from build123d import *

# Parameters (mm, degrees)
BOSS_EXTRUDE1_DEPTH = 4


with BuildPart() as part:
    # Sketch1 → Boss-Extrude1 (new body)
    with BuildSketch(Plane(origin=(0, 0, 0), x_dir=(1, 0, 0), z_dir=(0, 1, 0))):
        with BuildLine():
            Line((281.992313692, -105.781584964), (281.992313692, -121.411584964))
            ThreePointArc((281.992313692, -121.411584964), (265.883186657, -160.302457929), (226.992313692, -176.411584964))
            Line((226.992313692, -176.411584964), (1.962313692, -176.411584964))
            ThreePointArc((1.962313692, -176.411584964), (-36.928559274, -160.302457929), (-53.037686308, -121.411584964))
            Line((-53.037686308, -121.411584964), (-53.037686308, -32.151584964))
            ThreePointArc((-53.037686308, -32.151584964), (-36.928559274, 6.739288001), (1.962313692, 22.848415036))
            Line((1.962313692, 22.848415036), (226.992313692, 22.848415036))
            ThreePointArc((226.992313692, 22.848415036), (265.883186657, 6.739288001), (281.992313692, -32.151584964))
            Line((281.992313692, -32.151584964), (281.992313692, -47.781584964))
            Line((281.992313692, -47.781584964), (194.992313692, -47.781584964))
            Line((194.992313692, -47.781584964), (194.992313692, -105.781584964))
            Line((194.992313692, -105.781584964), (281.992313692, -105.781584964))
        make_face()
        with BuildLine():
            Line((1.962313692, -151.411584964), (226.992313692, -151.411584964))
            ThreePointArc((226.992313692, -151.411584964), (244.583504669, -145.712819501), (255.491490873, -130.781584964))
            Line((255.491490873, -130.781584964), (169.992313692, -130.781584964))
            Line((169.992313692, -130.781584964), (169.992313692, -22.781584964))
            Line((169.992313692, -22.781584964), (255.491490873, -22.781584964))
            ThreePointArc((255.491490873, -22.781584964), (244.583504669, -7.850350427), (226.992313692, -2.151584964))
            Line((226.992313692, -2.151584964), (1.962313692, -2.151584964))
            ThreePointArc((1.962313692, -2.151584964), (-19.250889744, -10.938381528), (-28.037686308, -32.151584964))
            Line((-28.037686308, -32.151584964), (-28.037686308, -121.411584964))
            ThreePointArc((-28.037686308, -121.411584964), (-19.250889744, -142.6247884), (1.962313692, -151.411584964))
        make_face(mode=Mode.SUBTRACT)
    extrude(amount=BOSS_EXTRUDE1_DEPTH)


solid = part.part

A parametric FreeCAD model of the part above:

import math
import FreeCAD as App
import Part
import Sketcher
Q = App.Units.Quantity

doc = App.newDocument("Part")
body = doc.addObject("PartDesign::Body", "Body")

# Sketch on XZ plane
sketch1 = doc.addObject("Sketcher::SketchObject", "Sketch")
body.addObject(sketch1)
sketch1.AttachmentSupport = (doc.XZ_Plane, [""])
sketch1.MapMode = "FlatFace"
sketch1.addGeometry(Part.LineSegment(App.Vector(282, 121, 0), App.Vector(282, 106, 0)), False)
sketch1.addGeometry(Part.LineSegment(App.Vector(282, 106, 0), App.Vector(195, 106, 0)), False)
sketch1.addGeometry(Part.LineSegment(App.Vector(195, 106, 0), App.Vector(195, 48, 0)), False)
sketch1.addGeometry(Part.LineSegment(App.Vector(195, 48, 0), App.Vector(282, 48, 0)), False)
sketch1.addGeometry(Part.LineSegment(App.Vector(282, 48, 0), App.Vector(282, 32, 0)), False)
sketch1.addGeometry(Part.ArcOfCircle(Part.Circle(App.Vector(227, 32, 0), App.Vector(0, 0, 1), 55), math.radians(-90), math.radians(0)), False)
sketch1.addGeometry(Part.LineSegment(App.Vector(227, -23, 0), App.Vector(2, -23, 0)), False)
sketch1.addGeometry(Part.ArcOfCircle(Part.Circle(App.Vector(2, 32, 0), App.Vector(0, 0, 1), 55), math.radians(180), math.radians(270)), False)
sketch1.addGeometry(Part.LineSegment(App.Vector(-53, 32, 0), App.Vector(-53, 121, 0)), False)
sketch1.addGeometry(Part.ArcOfCircle(Part.Circle(App.Vector(2, 121, 0), App.Vector(0, 0, 1), 55), math.radians(90), math.radians(180)), False)
sketch1.addGeometry(Part.LineSegment(App.Vector(2, 176, 0), App.Vector(227, 176, 0)), False)
sketch1.addGeometry(Part.ArcOfCircle(Part.Circle(App.Vector(227, 121, 0), App.Vector(0, 0, 1), 55), math.radians(0), math.radians(90)), False)
sketch1.addGeometry(Part.ArcOfCircle(Part.Circle(App.Vector(2, 121, 0), App.Vector(0, 0, 1), 30), math.radians(90), math.radians(180)), False)
sketch1.addGeometry(Part.LineSegment(App.Vector(-28, 121, 0), App.Vector(-28, 32, 0)), False)
sketch1.addGeometry(Part.ArcOfCircle(Part.Circle(App.Vector(2, 32, 0), App.Vector(0, 0, 1), 30), math.radians(180), math.radians(270)), False)
sketch1.addGeometry(Part.LineSegment(App.Vector(2, 2, 0), App.Vector(227, 2, 0)), False)
sketch1.addGeometry(Part.ArcOfCircle(Part.Circle(App.Vector(227, 32, 0), App.Vector(0, 0, 1), 30), math.radians(-90), math.radians(-18)), False)
sketch1.addGeometry(Part.LineSegment(App.Vector(255, 23, 0), App.Vector(170, 23, 0)), False)
sketch1.addGeometry(Part.LineSegment(App.Vector(170, 23, 0), App.Vector(170, 131, 0)), False)
sketch1.addGeometry(Part.LineSegment(App.Vector(170, 131, 0), App.Vector(255, 131, 0)), False)
sketch1.addGeometry(Part.ArcOfCircle(Part.Circle(App.Vector(227, 121, 0), App.Vector(0, 0, 1), 30), math.radians(18), math.radians(90)), False)
sketch1.addGeometry(Part.LineSegment(App.Vector(227, 151, 0), App.Vector(2, 151, 0)), False)
sketch1.addConstraint(Sketcher.Constraint("Coincident", 0, 2, 1, 1))
sketch1.addConstraint(Sketcher.Constraint("Coincident", 1, 2, 2, 1))
sketch1.addConstraint(Sketcher.Constraint("Coincident", 2, 2, 3, 1))
sketch1.addConstraint(Sketcher.Constraint("Coincident", 3, 2, 4, 1))
sketch1.addConstraint(Sketcher.Constraint("Tangent", 4, 2, 5, 2))
sketch1.addConstraint(Sketcher.Constraint("Tangent", 5, 1, 6, 1))
sketch1.addConstraint(Sketcher.Constraint("Tangent", 6, 2, 7, 2))
sketch1.addConstraint(Sketcher.Constraint("Tangent", 7, 1, 8, 1))
sketch1.addConstraint(Sketcher.Constraint("Tangent", 8, 2, 9, 2))
sketch1.addConstraint(Sketcher.Constraint("Tangent", 9, 1, 10, 1))
sketch1.addConstraint(Sketcher.Constraint("Tangent", 10, 2, 11, 2))
sketch1.addConstraint(Sketcher.Constraint("Tangent", 11, 1, 0, 1))
sketch1.addConstraint(Sketcher.Constraint("Tangent", 12, 2, 13, 1))
sketch1.addConstraint(Sketcher.Constraint("Tangent", 13, 2, 14, 1))
sketch1.addConstraint(Sketcher.Constraint("Tangent", 14, 2, 15, 1))
sketch1.addConstraint(Sketcher.Constraint("Tangent", 15, 2, 16, 1))
sketch1.addConstraint(Sketcher.Constraint("Coincident", 16, 2, 17, 1))
sketch1.addConstraint(Sketcher.Constraint("Coincident", 17, 2, 18, 1))
sketch1.addConstraint(Sketcher.Constraint("Coincident", 18, 2, 19, 1))
sketch1.addConstraint(Sketcher.Constraint("Coincident", 19, 2, 20, 1))
sketch1.addConstraint(Sketcher.Constraint("Tangent", 20, 2, 21, 1))
sketch1.addConstraint(Sketcher.Constraint("Tangent", 21, 2, 12, 1))
sketch1.addConstraint(Sketcher.Constraint("Vertical", 0))
sketch1.addConstraint(Sketcher.Constraint("Horizontal", 1))
sketch1.addConstraint(Sketcher.Constraint("Vertical", 2))
sketch1.addConstraint(Sketcher.Constraint("Horizontal", 3))
sketch1.addConstraint(Sketcher.Constraint("Vertical", 4))
sketch1.addConstraint(Sketcher.Constraint("Horizontal", 6))
sketch1.addConstraint(Sketcher.Constraint("Vertical", 8))
sketch1.addConstraint(Sketcher.Constraint("Horizontal", 10))
sketch1.addConstraint(Sketcher.Constraint("Vertical", 13))
sketch1.addConstraint(Sketcher.Constraint("Horizontal", 15))
sketch1.addConstraint(Sketcher.Constraint("Horizontal", 17))
sketch1.addConstraint(Sketcher.Constraint("Vertical", 18))
sketch1.addConstraint(Sketcher.Constraint("Horizontal", 19))
sketch1.addConstraint(Sketcher.Constraint("Horizontal", 21))
sketch1.addConstraint(Sketcher.Constraint("Coincident", 12, 3, 9, 3))
sketch1.addConstraint(Sketcher.Constraint("Coincident", 14, 3, 7, 3))
sketch1.addConstraint(Sketcher.Constraint("Coincident", 16, 3, 5, 3))
sketch1.addConstraint(Sketcher.Constraint("Coincident", 20, 3, 11, 3))
sketch1.addConstraint(Sketcher.Constraint("Equal", 5, 7))
sketch1.addConstraint(Sketcher.Constraint("Equal", 7, 9))
sketch1.addConstraint(Sketcher.Constraint("Equal", 9, 11))
sketch1.addConstraint(Sketcher.Constraint("Vertical", 5, 3, 11, 3))
sketch1.addConstraint(Sketcher.Constraint("Vertical", 16, 2, 19, 2))
sketch1.addConstraint(Sketcher.Constraint("Equal", 0, 4))
sketch1.addConstraint(Sketcher.Constraint("Radius", 5, Q("55 mm")))
sketch1.addConstraint(Sketcher.Constraint("Radius", 12, Q("30 mm")))
sketch1.addConstraint(Sketcher.Constraint("DistanceX", 1, 2, 1, 1, Q("87 mm")))
sketch1.addConstraint(Sketcher.Constraint("DistanceY", 2, 2, 2, 1, Q("58 mm")))
sketch1.addConstraint(Sketcher.Constraint("DistanceY", 18, 1, 18, 2, Q("108 mm")))
sketch1.addConstraint(Sketcher.Constraint("DistanceX", 17, 2, 2, 2, Q("25 mm")))
sketch1.addConstraint(Sketcher.Constraint("DistanceX", 6, 2, 6, 1, Q("225.03 mm")))
sketch1.addConstraint(Sketcher.Constraint("DistanceY", 0, 2, 0, 1, Q("15.63 mm")))
sketch1.addConstraint(Sketcher.Constraint("DistanceX", -1, 1, 16, 2, Q("255.491491 mm")))
sketch1.addConstraint(Sketcher.Constraint("DistanceY", -1, 1, 5, 3, Q("32.151585 mm")))
pad1 = doc.addObject("PartDesign::Pad", "Pad")
body.addObject(pad1)
pad1.Profile = sketch1
pad1.Length = 4
pad1.Reversed = True

doc.recompute()
